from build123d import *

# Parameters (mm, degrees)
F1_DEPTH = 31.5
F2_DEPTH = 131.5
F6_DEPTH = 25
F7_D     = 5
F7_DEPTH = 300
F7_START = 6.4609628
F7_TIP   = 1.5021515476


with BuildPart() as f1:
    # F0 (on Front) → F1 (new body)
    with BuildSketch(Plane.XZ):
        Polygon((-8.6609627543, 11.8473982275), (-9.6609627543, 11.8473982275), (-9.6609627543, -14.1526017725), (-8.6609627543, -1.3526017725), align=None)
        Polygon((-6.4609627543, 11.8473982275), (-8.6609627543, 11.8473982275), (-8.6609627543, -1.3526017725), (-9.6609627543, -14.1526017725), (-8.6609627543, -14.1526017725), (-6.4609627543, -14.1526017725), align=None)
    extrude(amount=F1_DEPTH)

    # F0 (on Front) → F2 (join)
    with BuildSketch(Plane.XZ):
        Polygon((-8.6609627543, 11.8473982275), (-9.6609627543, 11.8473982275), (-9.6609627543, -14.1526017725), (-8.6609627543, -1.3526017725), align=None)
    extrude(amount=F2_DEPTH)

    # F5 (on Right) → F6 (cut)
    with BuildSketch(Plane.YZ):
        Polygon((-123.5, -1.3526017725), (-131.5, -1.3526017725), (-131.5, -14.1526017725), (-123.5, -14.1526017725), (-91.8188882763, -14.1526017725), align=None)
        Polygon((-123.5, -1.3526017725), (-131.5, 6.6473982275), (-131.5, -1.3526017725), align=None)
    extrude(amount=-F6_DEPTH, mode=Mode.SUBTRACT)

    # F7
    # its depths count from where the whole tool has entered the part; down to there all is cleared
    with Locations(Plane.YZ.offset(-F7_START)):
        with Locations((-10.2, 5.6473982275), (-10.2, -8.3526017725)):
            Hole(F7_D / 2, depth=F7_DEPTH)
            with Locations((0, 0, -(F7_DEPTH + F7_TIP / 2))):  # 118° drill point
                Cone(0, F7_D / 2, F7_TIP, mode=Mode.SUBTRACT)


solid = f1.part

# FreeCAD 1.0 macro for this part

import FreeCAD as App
import Part
import Sketcher
Q = App.Units.Quantity


def add_polygon(sketch, points):
    """Adds a closed chain of lines whose ends are joined by coincident constraints."""
    first, n = sketch.GeometryCount, len(points)
    for a, b in zip(points, points[1:] + points[:1]):
        sketch.addGeometry(Part.LineSegment(App.Vector(*a, 0), App.Vector(*b, 0)), False)
    for i in range(n):
        sketch.addConstraint(Sketcher.Constraint("Coincident", first + i, 2, first + (i + 1) % n, 1))

doc = App.newDocument("Part")
body = doc.addObject("PartDesign::Body", "Body")

# Sketch on XZ plane
sketch1 = doc.addObject("Sketcher::SketchObject", "Sketch")
body.addObject(sketch1)
sketch1.AttachmentSupport = (doc.XZ_Plane, [""])
sketch1.MapMode = "FlatFace"
add_polygon(sketch1, [(-9.7, 11.8), (-9.7, -14.2), (-6.5, -14.2), (-6.5, 11.8)])  # lines 0-3
sketch1.addConstraint(Sketcher.Constraint("Vertical", 0))
sketch1.addConstraint(Sketcher.Constraint("Horizontal", 1))
sketch1.addConstraint(Sketcher.Constraint("Vertical", 2))
sketch1.addConstraint(Sketcher.Constraint("Horizontal", 3))
sketch1.addConstraint(Sketcher.Constraint("DistanceY", 0, 2, 0, 1, 26.0))
sketch1.addConstraint(Sketcher.Constraint("DistanceX", 1, 1, 1, 2, 3.2))
sketch1.addConstraint(Sketcher.Constraint("DistanceY", 0, 2, -1, 1, 14.152602))
sketch1.addConstraint(Sketcher.Constraint("DistanceX", 0, 2, -1, 1, 9.660963))
pad1 = doc.addObject("PartDesign::Pad", "Pad")
body.addObject(pad1)
pad1.Profile = sketch1
pad1.Length = 31.5

# Sketch on XZ plane
sketch2 = doc.addObject("Sketcher::SketchObject", "Sketch001")
body.addObject(sketch2)
sketch2.AttachmentSupport = (doc.XZ_Plane, [""])
sketch2.MapMode = "FlatFace"
add_polygon(sketch2, [(-8.7, 11.8), (-9.7, 11.8), (-9.7, -14.2), (-8.7, -1.4)])  # lines 0-3
sketch2.addConstraint(Sketcher.Constraint("Horizontal", 0))
sketch2.addConstraint(Sketcher.Constraint("Vertical", 1))
sketch2.addConstraint(Sketcher.Constraint("Vertical", 3))
sketch2.addConstraint(Sketcher.Constraint("DistanceX", 0, 2, 0, 1, 1.0))
sketch2.addConstraint(Sketcher.Constraint("DistanceY", 1, 2, 1, 1, 26.0))
sketch2.addConstraint(Sketcher.Constraint("DistanceY", 3, 1, 3, 2, 13.2))
sketch2.addConstraint(Sketcher.Constraint("DistanceY", -1, 1, 0, 2, 11.847398))
sketch2.addConstraint(Sketcher.Constraint("DistanceX", 0, 2, -1, 1, 9.660963))
pad2 = doc.addObject("PartDesign::Pad", "Pad001")
body.addObject(pad2)
pad2.Profile = sketch2
pad2.Length = 131.5

# Sketch on YZ plane
sketch3 = doc.addObject("Sketcher::SketchObject", "Sketch002")
body.addObject(sketch3)
sketch3.AttachmentSupport = (doc.YZ_Plane, [""])
sketch3.MapMode = "FlatFace"
add_polygon(sketch3, [(-132, -14), (-92, -14), (-124, -1), (-132, 7)])  # lines 0-3
sketch3.addConstraint(Sketcher.Constraint("Horizontal", 0))
sketch3.addConstraint(Sketcher.Constraint("Vertical", 3))
sketch3.addConstraint(Sketcher.Constraint("Angle", 1, Q("158 deg")))
sketch3.addConstraint(Sketcher.Constraint("Angle", 2, Q("135 deg")))
sketch3.addConstraint(Sketcher.Constraint("DistanceY", 3, 2, 3, 1, 20.8))
sketch3.addConstraint(Sketcher.Constraint("DistanceX", 2, 2, 1, 2, 8.0))
sketch3.addConstraint(Sketcher.Constraint("DistanceX", 1, 2, -1, 1, 123.5))
sketch3.addConstraint(Sketcher.Constraint("DistanceY", 0, 2, -1, 1, 14.152602))
pocket1 = doc.addObject("PartDesign::Pocket", "Pocket")
body.addObject(pocket1)
pocket1.Profile = sketch3
pocket1.Length = 25

# Sketch on YZ plane
sketch4 = doc.addObject("Sketcher::SketchObject", "Sketch003")
body.addObject(sketch4)
sketch4.AttachmentSupport = (doc.YZ_Plane, [""])
sketch4.MapMode = "FlatFace"
sketch4.AttachmentOffset = App.Placement(App.Vector(0, 0, -6.460963), App.Rotation())
sketch4.addGeometry(Part.Circle(App.Vector(-10.2, 5.6, 0), App.Vector(0, 0, 1), 2.5), False)
sketch4.addGeometry(Part.Circle(App.Vector(-10.2, -8.4, 0), App.Vector(0, 0, 1), 2.5), False)
sketch4.addConstraint(Sketcher.Constraint("Equal", 0, 1))
sketch4.addConstraint(Sketcher.Constraint("Vertical", 0, 3, 1, 3))
sketch4.addConstraint(Sketcher.Constraint("Diameter", 0, 5.0))
sketch4.addConstraint(Sketcher.Constraint("DistanceY", 1, 3, 0, 3, 14.0))
sketch4.addConstraint(Sketcher.Constraint("DistanceX", 0, 3, -1, 1, 10.2))
sketch4.addConstraint(Sketcher.Constraint("DistanceY", -1, 1, 0, 3, 5.647398))
doc.recompute()
hole = doc.addObject("PartDesign::Hole", "Hole")
body.addObject(hole)
hole.Profile = sketch4
hole.ThreadType = "None"
hole.Diameter = 5
hole.DepthType = "Dimension"
hole.Depth = 300
hole.DrillPoint = "Angled"
hole.DrillPointAngle = 118

doc.recompute()
